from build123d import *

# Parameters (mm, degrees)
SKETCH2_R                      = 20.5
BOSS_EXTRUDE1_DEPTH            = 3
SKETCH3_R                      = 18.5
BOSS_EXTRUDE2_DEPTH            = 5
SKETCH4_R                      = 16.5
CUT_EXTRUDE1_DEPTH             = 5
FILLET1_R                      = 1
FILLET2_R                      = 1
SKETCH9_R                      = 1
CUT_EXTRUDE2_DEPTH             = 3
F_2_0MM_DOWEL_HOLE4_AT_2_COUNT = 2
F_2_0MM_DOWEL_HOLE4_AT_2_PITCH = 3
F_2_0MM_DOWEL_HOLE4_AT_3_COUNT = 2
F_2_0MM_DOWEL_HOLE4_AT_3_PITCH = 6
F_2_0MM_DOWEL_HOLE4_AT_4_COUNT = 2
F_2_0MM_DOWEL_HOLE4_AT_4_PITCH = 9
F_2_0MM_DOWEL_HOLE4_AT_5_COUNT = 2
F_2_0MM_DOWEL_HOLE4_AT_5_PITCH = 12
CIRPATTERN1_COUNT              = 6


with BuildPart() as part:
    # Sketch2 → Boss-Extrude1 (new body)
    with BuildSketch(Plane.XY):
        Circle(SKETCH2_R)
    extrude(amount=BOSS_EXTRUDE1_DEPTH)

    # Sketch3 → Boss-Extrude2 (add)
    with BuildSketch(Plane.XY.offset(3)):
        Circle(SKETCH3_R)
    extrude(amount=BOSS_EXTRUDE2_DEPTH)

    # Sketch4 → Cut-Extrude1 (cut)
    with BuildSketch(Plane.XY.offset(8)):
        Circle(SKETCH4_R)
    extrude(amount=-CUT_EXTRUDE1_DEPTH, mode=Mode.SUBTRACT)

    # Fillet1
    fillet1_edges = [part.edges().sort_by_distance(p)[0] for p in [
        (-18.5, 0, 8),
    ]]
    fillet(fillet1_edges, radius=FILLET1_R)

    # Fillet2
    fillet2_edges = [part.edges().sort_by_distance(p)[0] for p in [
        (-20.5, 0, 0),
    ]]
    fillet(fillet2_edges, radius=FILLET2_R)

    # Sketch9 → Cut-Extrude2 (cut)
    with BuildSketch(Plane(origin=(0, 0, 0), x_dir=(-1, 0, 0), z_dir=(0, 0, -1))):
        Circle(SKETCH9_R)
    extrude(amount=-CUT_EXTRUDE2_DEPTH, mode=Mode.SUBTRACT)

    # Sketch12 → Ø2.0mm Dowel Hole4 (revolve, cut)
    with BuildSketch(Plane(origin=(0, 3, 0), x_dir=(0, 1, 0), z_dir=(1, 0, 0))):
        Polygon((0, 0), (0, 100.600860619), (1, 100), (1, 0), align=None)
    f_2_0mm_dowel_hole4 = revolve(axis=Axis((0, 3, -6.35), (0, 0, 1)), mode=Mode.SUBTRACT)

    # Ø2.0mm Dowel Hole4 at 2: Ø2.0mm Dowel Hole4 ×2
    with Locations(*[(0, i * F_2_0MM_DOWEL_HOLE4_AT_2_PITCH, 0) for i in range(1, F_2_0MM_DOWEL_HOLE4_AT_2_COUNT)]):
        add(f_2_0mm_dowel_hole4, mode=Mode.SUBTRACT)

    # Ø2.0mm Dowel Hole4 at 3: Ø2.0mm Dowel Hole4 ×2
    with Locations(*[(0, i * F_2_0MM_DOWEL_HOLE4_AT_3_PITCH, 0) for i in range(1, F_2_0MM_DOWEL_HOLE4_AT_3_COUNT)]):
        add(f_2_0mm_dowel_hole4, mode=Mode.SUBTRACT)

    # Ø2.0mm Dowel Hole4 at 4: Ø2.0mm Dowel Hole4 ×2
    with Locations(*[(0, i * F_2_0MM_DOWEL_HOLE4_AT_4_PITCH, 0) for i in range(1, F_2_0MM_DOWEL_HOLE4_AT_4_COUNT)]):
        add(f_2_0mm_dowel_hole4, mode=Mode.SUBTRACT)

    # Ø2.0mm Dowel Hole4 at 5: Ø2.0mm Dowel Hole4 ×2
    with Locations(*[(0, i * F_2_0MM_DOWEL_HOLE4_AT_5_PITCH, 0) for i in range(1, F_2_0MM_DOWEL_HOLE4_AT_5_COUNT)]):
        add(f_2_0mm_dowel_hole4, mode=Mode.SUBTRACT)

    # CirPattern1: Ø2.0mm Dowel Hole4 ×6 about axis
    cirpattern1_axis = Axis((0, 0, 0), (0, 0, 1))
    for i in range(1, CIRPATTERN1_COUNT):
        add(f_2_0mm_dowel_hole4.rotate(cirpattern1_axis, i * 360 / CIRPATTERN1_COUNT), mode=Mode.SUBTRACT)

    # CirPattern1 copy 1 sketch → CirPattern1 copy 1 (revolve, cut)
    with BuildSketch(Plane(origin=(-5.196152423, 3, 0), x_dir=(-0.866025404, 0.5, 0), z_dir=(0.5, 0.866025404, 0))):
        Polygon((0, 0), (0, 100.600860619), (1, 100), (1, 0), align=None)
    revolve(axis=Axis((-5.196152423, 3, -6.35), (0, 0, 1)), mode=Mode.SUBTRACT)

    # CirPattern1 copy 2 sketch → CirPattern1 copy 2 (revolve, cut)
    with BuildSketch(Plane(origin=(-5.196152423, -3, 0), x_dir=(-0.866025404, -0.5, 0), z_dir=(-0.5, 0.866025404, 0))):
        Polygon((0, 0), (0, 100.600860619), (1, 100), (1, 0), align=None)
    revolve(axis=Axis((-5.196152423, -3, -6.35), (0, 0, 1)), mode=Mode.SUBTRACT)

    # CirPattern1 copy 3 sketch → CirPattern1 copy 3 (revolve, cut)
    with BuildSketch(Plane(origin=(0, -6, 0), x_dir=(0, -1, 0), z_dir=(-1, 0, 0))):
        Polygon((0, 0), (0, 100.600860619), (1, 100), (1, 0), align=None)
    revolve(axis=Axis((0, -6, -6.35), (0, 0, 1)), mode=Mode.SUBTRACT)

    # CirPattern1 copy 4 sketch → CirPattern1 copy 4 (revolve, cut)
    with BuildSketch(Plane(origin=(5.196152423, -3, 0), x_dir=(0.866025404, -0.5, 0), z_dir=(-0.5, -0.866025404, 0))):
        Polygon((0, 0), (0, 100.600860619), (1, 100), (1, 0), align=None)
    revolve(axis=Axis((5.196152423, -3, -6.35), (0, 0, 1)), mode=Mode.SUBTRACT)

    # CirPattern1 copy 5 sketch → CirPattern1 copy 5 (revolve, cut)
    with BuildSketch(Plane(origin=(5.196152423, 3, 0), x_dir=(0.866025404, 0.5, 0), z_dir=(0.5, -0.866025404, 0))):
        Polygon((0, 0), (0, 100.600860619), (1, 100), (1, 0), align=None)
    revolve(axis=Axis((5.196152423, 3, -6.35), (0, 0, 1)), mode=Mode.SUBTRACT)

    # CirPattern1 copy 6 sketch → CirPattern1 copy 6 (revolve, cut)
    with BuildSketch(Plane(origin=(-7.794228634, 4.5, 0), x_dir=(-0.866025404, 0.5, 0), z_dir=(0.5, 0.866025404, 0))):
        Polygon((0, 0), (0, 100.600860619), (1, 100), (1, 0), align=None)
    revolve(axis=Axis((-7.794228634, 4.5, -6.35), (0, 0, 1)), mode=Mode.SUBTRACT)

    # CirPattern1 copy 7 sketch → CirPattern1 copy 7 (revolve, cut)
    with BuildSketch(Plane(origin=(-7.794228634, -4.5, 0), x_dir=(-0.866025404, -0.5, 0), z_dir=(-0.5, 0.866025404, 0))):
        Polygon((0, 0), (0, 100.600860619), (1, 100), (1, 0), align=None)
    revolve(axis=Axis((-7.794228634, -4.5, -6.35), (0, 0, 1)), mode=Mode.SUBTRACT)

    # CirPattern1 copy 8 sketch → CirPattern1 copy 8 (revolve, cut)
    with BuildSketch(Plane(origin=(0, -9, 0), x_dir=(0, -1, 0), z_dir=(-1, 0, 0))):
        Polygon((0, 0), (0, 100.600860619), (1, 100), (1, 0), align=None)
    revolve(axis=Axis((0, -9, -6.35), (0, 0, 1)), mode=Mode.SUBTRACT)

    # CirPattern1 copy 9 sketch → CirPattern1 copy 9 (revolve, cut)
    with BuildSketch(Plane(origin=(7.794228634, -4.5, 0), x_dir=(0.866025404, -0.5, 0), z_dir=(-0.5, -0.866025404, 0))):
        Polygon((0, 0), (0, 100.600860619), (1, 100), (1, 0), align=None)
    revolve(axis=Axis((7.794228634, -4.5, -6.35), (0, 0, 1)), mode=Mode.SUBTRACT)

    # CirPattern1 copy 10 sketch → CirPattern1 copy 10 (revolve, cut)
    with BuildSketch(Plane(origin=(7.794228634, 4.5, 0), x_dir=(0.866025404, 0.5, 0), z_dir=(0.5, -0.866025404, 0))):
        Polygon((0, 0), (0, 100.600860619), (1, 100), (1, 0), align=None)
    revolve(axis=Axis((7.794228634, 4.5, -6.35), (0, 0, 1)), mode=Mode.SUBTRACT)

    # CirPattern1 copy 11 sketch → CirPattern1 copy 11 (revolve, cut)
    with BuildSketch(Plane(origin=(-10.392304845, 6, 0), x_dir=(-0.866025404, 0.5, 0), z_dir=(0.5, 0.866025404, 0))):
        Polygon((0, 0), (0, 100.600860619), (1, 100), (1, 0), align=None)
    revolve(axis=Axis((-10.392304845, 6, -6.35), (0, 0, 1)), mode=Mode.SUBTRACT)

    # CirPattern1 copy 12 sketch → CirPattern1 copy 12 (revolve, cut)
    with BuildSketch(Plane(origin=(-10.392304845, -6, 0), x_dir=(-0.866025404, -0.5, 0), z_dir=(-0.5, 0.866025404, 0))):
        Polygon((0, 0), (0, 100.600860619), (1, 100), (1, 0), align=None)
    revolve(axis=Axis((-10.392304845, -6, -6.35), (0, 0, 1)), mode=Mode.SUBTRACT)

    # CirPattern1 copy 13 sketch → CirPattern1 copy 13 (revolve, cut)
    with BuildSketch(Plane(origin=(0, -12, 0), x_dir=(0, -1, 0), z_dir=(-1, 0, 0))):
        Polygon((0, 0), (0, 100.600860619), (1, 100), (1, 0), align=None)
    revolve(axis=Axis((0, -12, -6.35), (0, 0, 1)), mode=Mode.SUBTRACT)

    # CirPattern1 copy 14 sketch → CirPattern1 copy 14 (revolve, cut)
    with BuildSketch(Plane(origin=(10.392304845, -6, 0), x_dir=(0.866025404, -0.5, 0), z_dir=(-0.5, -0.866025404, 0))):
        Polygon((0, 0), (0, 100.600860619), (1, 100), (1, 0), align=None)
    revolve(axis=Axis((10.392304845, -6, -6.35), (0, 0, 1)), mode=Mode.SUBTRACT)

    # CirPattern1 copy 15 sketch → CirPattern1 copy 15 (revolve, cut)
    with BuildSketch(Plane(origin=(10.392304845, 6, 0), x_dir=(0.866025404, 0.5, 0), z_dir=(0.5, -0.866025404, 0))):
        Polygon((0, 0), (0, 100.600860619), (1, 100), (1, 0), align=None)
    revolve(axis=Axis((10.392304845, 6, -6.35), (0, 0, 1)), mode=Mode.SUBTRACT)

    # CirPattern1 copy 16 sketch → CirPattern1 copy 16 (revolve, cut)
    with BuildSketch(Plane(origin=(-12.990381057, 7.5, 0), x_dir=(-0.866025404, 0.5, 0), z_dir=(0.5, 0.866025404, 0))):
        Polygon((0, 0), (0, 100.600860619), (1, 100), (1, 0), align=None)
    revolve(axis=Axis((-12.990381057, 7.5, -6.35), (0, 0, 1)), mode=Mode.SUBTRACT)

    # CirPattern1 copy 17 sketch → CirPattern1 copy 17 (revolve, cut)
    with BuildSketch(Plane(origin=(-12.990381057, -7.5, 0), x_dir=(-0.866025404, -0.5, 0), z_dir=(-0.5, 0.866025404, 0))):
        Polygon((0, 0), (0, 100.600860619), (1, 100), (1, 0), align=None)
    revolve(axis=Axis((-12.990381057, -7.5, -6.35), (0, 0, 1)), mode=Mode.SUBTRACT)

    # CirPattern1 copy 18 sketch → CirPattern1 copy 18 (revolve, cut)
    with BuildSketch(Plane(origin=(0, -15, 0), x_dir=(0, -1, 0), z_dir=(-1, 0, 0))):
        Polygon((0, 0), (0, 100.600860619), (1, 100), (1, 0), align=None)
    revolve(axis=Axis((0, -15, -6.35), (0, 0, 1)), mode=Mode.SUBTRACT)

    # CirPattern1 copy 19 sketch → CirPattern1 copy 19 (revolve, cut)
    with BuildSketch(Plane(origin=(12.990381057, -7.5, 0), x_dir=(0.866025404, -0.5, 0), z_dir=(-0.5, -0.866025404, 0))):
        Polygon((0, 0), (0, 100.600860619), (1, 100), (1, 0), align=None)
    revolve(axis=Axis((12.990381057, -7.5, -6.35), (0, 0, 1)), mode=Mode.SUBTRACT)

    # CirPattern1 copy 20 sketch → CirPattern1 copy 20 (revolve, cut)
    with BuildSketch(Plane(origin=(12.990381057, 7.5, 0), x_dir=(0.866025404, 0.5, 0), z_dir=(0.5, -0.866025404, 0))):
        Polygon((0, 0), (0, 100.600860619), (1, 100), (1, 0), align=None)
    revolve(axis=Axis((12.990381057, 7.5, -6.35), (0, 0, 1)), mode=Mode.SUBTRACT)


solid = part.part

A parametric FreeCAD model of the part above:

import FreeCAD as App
import Part
import Sketcher
Q = App.Units.Quantity


def edges_at(feature, points):
    """Names of the edges that pass closest to the given points."""
    edges = feature.Shape.Edges
    near = lambda p: min(range(len(edges)), key=lambda i: edges[i].distToShape(Part.Vertex(*p))[0])
    return sorted({f"Edge{near(p) + 1}" for p in points})

doc = App.newDocument("Part")
params = doc.addObject("Spreadsheet::Sheet", "Params")
for row, (alias, value) in enumerate([
    ("sketch1_diameter", "41 mm"),
    ("pad1_length", "3 mm"),
    ("sketch2_diameter", "37 mm"),
    ("pad2_length", "5 mm"),
    ("sketch3_diameter", "33 mm"),
    ("pocket1_length", "5 mm"),
    ("fillet_radius", "1 mm"),
    ("fillet2_radius", "1 mm"),
    ("sketch4_diameter", "2 mm"),
    ("pocket2_length", "3 mm"),
    ("sketch5_width", "1 mm"),
    ("sketch5_height", "100 mm"),
    ("groove_angle", "360 deg"),
    ("linearpattern_pitch", "3 mm"),
    ("linearpattern2_pitch", "6 mm"),
    ("linearpattern3_pitch", "9 mm"),
    ("linearpattern4_pitch", "12 mm"),
    ("sketch6_width", "1 mm"),
    ("sketch6_height", "100 mm"),
    ("groove2_angle", "360 deg"),
    ("sketch7_width", "1 mm"),
    ("sketch7_height", "100 mm"),
    ("groove3_angle", "360 deg"),
    ("sketch8_width", "1 mm"),
    ("sketch8_height", "100 mm"),
    ("groove4_angle", "360 deg"),
    ("sketch9_width", "1 mm"),
    ("sketch9_height", "100 mm"),
    ("groove5_angle", "360 deg"),
    ("sketch10_width", "1 mm"),
    ("sketch10_height", "100 mm"),
    ("groove6_angle", "360 deg"),
    ("sketch11_width", "1 mm"),
    ("sketch11_height", "100 mm"),
    ("groove7_angle", "360 deg"),
    ("sketch12_width", "1 mm"),
    ("sketch12_height", "100 mm"),
    ("groove8_angle", "360 deg"),
    ("sketch13_width", "1 mm"),
    ("sketch13_height", "100 mm"),
    ("groove9_angle", "360 deg"),
    ("sketch14_width", "1 mm"),
    ("sketch14_height", "100 mm"),
    ("groove10_angle", "360 deg"),
    ("sketch15_width", "1 mm"),
    ("sketch15_height", "100 mm"),
    ("groove11_angle", "360 deg"),
    ("sketch16_width", "1 mm"),
    ("sketch16_height", "100 mm"),
    ("groove12_angle", "360 deg"),
    ("sketch17_width", "1 mm"),
    ("sketch17_height", "100 mm"),
    ("groove13_angle", "360 deg"),
    ("sketch18_width", "1 mm"),
    ("sketch18_height", "100 mm"),
    ("groove14_angle", "360 deg"),
    ("sketch19_width", "1 mm"),
    ("sketch19_height", "100 mm"),
    ("groove15_angle", "360 deg"),
    ("sketch20_width", "1 mm"),
    ("sketch20_height", "100 mm"),
    ("groove16_angle", "360 deg"),
    ("sketch21_width", "1 mm"),
    ("sketch21_height", "100 mm"),
    ("groove17_angle", "360 deg"),
    ("sketch22_width", "1 mm"),
    ("sketch22_height", "100 mm"),
    ("groove18_angle", "360 deg"),
    ("sketch23_width", "1 mm"),
    ("sketch23_height", "100 mm"),
    ("groove19_angle", "360 deg"),
    ("sketch24_width", "1 mm"),
    ("sketch24_height", "100 mm"),
    ("groove20_angle", "360 deg"),
    ("sketch25_width", "1 mm"),
    ("sketch25_height", "100 mm"),
    ("groove21_angle", "360 deg"),
], start=1):
    params.set(f"A{row}", alias)
    params.set(f"B{row}", "=" + value)
    params.setAlias(f"B{row}", alias)

body = doc.addObject("PartDesign::Body", "Body")

# Sketch on XY plane
sketch1 = body.newObject("Sketcher::SketchObject", "Sketch")
sketch1.AttachmentSupport = (doc.getObject("XY_Plane"), [""])
sketch1.MapMode = "FlatFace"
sketch1.addGeometry(Part.Circle(App.Vector(0, 0, 0), App.Vector(0, 0, 1), 20.5), False)
sketch1.addConstraint(Sketcher.Constraint("Coincident", 0, 3, -1, 1))
sketch1.addConstraint(Sketcher.Constraint("Diameter", 0, Q("41 mm")))
sketch1.setExpression("Constraints[1]", "Params.sketch1_diameter")
pad1 = body.newObject("PartDesign::Pad", "Pad")
pad1.Profile = sketch1
pad1.setExpression("Length", "Params.pad1_length")

# Sketch on XY plane
sketch2 = body.newObject("Sketcher::SketchObject", "Sketch001")
sketch2.AttachmentSupport = (doc.getObject("XY_Plane"), [""])
sketch2.MapMode = "FlatFace"
sketch2.AttachmentOffset = App.Placement(App.Vector(0, 0, 3), App.Rotation())
sketch2.addGeometry(Part.Circle(App.Vector(0, 0, 0), App.Vector(0, 0, 1), 18.5), False)
sketch2.addConstraint(Sketcher.Constraint("Coincident", 0, 3, -1, 1))
sketch2.addConstraint(Sketcher.Constraint("Diameter", 0, Q("37 mm")))
sketch2.setExpression("Constraints[1]", "Params.sketch2_diameter")
pad2 = body.newObject("PartDesign::Pad", "Pad001")
pad2.Profile = sketch2
pad2.setExpression("Length", "Params.pad2_length")

# Sketch on XY plane
sketch3 = body.newObject("Sketcher::SketchObject", "Sketch002")
sketch3.AttachmentSupport = (doc.getObject("XY_Plane"), [""])
sketch3.MapMode = "FlatFace"
sketch3.AttachmentOffset = App.Placement(App.Vector(0, 0, 8), App.Rotation())
sketch3.addGeometry(Part.Circle(App.Vector(0, 0, 0), App.Vector(0, 0, 1), 16.5), False)
sketch3.addConstraint(Sketcher.Constraint("Coincident", 0, 3, -1, 1))
sketch3.addConstraint(Sketcher.Constraint("Diameter", 0, Q("33 mm")))
sketch3.setExpression("Constraints[1]", "Params.sketch3_diameter")
pocket1 = body.newObject("PartDesign::Pocket", "Pocket")
pocket1.Profile = sketch3
pocket1.setExpression("Length", "Params.pocket1_length")
doc.recompute()

fillet = body.newObject("PartDesign::Fillet", "Fillet")
fillet.Base = (pocket1, edges_at(pocket1, [(-18.5, 0, 8)]))
fillet.setExpression("Radius", "Params.fillet_radius")
doc.recompute()

fillet2 = body.newObject("PartDesign::Fillet", "Fillet001")
fillet2.Base = (fillet, edges_at(fillet, [(-20.5, 0, 0)]))
fillet2.setExpression("Radius", "Params.fillet2_radius")

# Sketch on XY plane
sketch4 = body.newObject("Sketcher::SketchObject", "Sketch003")
sketch4.AttachmentSupport = (doc.getObject("XY_Plane"), [""])
sketch4.MapMode = "FlatFace"
sketch4.addGeometry(Part.Circle(App.Vector(0, 0, 0), App.Vector(0, 0, 1), 1), False)
sketch4.addConstraint(Sketcher.Constraint("Coincident", 0, 3, -1, 1))
sketch4.addConstraint(Sketcher.Constraint("Diameter", 0, Q("2 mm")))
sketch4.setExpression("Constraints[1]", "Params.sketch4_diameter")
pocket2 = body.newObject("PartDesign::Pocket", "Pocket001")
pocket2.Profile = sketch4
pocket2.setExpression("Length", "Params.pocket2_length")
pocket2.Reversed = True

# Sketch on YZ plane
sketch5 = body.newObject("Sketcher::SketchObject", "Sketch004")
sketch5.AttachmentSupport = (doc.getObject("YZ_Plane"), [""])
sketch5.MapMode = "FlatFace"
sketch5.addGeometry(Part.LineSegment(App.Vector(3, 100.600861, 0), App.Vector(3, 0, 0)), False)
sketch5.addGeometry(Part.LineSegment(App.Vector(3, 0, 0), App.Vector(4, 0, 0)), False)
sketch5.addGeometry(Part.LineSegment(App.Vector(4, 0, 0), App.Vector(4, 100, 0)), False)
sketch5.addGeometry(Part.LineSegment(App.Vector(4, 100, 0), App.Vector(3, 100.600861, 0)), False)
sketch5.addGeometry(Part.LineSegment(App.Vector(3, 0, 0), App.Vector(3, 100.600861, 0)), True)  # axis
sketch5.addConstraint(Sketcher.Constraint("Coincident", 0, 2, 1, 1))
sketch5.addConstraint(Sketcher.Constraint("Coincident", 1, 2, 2, 1))
sketch5.addConstraint(Sketcher.Constraint("Coincident", 2, 2, 3, 1))
sketch5.addConstraint(Sketcher.Constraint("Coincident", 3, 2, 0, 1))
sketch5.addConstraint(Sketcher.Constraint("Vertical", 0))
sketch5.addConstraint(Sketcher.Constraint("Horizontal", 1))
sketch5.addConstraint(Sketcher.Constraint("Vertical", 2))
sketch5.addConstraint(Sketcher.Constraint("Vertical", 4))
sketch5.addConstraint(Sketcher.Constraint("Coincident", 4, 1, 0, 2))
sketch5.addConstraint(Sketcher.Constraint("PointOnObject", 0, 2, -1))
sketch5.addConstraint(Sketcher.Constraint("Equal", 0, 4))
sketch5.addConstraint(Sketcher.Constraint("DistanceX", 1, 1, 1, 2, Q("1 mm")))
sketch5.addConstraint(Sketcher.Constraint("DistanceY", 2, 1, 2, 2, Q("100 mm")))
sketch5.addConstraint(Sketcher.Constraint("Angle", 3, Q("149 deg")))
sketch5.addConstraint(Sketcher.Constraint("DistanceX", -1, 1, 0, 2, Q("3 mm")))
sketch5.setExpression("Constraints[11]", "Params.sketch5_width")
sketch5.setExpression("Constraints[12]", "Params.sketch5_height")
groove = body.newObject("PartDesign::Groove", "Groove")
groove.Profile = sketch5
groove.ReferenceAxis = (sketch5, ["Axis0"])
groove.setExpression("Angle", "Params.groove_angle")
doc.recompute()

linearpattern = body.newObject("PartDesign::LinearPattern", "LinearPattern")
linearpattern.Originals = [groove]
linearpattern.Direction = (doc.getObject("Y_Axis"), [""])
linearpattern.Mode = "offset"
linearpattern.setExpression("Offset", "Params.linearpattern_pitch")
linearpattern.Occurrences = 2
body.Tip = linearpattern
doc.recompute()

linearpattern2 = body.newObject("PartDesign::LinearPattern", "LinearPattern001")
linearpattern2.Originals = [groove]
linearpattern2.Direction = (doc.getObject("Y_Axis"), [""])
linearpattern2.Mode = "offset"
linearpattern2.setExpression("Offset", "Params.linearpattern2_pitch")
linearpattern2.Occurrences = 2
body.Tip = linearpattern2
doc.recompute()

linearpattern3 = body.newObject("PartDesign::LinearPattern", "LinearPattern002")
linearpattern3.Originals = [groove]
linearpattern3.Direction = (doc.getObject("Y_Axis"), [""])
linearpattern3.Mode = "offset"
linearpattern3.setExpression("Offset", "Params.linearpattern3_pitch")
linearpattern3.Occurrences = 2
body.Tip = linearpattern3
doc.recompute()

linearpattern4 = body.newObject("PartDesign::LinearPattern", "LinearPattern003")
linearpattern4.Originals = [groove]
linearpattern4.Direction = (doc.getObject("Y_Axis"), [""])
linearpattern4.Mode = "offset"
linearpattern4.setExpression("Offset", "Params.linearpattern4_pitch")
linearpattern4.Occurrences = 2
body.Tip = linearpattern4
doc.recompute()

polarpattern = body.newObject("PartDesign::PolarPattern", "PolarPattern")
polarpattern.Originals = [groove]
polarpattern.Axis = (doc.getObject("Z_Axis"), [""])
polarpattern.Angle = 360
polarpattern.Occurrences = 6
body.Tip = polarpattern

# Sketch on an angled plane
sketch6 = body.newObject("Sketcher::SketchObject", "Sketch005")
sketch6.Placement = App.Placement(App.Vector(-5.196152, 3, 0), App.Rotation(App.Vector(-0.866025404, 0.5, 0), App.Vector(0, 0, 1), App.Vector(0.5, 0.866025404, 0), "ZXY"))
sketch6.addGeometry(Part.LineSegment(App.Vector(0, 100.600861, 0), App.Vector(0, 0, 0)), False)
sketch6.addGeometry(Part.LineSegment(App.Vector(0, 0, 0), App.Vector(1, 0, 0)), False)
sketch6.addGeometry(Part.LineSegment(App.Vector(1, 0, 0), App.Vector(1, 100, 0)), False)
sketch6.addGeometry(Part.LineSegment(App.Vector(1, 100, 0), App.Vector(0, 100.600861, 0)), False)
sketch6.addConstraint(Sketcher.Constraint("Coincident", 0, 2, 1, 1))
sketch6.addConstraint(Sketcher.Constraint("Coincident", 1, 2, 2, 1))
sketch6.addConstraint(Sketcher.Constraint("Coincident", 2, 2, 3, 1))
sketch6.addConstraint(Sketcher.Constraint("Coincident", 3, 2, 0, 1))
sketch6.addConstraint(Sketcher.Constraint("Vertical", 0))
sketch6.addConstraint(Sketcher.Constraint("Horizontal", 1))
sketch6.addConstraint(Sketcher.Constraint("Vertical", 2))
sketch6.addConstraint(Sketcher.Constraint("Coincident", 0, 2, -1, 1))
sketch6.addConstraint(Sketcher.Constraint("DistanceX", 1, 1, 1, 2, Q("1 mm")))
sketch6.addConstraint(Sketcher.Constraint("DistanceY", 2, 1, 2, 2, Q("100 mm")))
sketch6.addConstraint(Sketcher.Constraint("Angle", 3, Q("149 deg")))
sketch6.setExpression("Constraints[8]", "Params.sketch6_width")
sketch6.setExpression("Constraints[9]", "Params.sketch6_height")
groove2 = body.newObject("PartDesign::Groove", "Groove001")
groove2.Profile = sketch6
groove2.ReferenceAxis = (sketch6, ["V_Axis"])
groove2.setExpression("Angle", "Params.groove2_angle")

# Sketch on an angled plane
sketch7 = body.newObject("Sketcher::SketchObject", "Sketch006")
sketch7.Placement = App.Placement(App.Vector(-5.196152, -3, 0), App.Rotation(App.Vector(-0.866025404, -0.5, 0), App.Vector(0, 0, 1), App.Vector(-0.5, 0.866025404, 0), "ZXY"))
sketch7.addGeometry(Part.LineSegment(App.Vector(0, 100.600861, 0), App.Vector(0, 0, 0)), False)
sketch7.addGeometry(Part.LineSegment(App.Vector(0, 0, 0), App.Vector(1, 0, 0)), False)
sketch7.addGeometry(Part.LineSegment(App.Vector(1, 0, 0), App.Vector(1, 100, 0)), False)
sketch7.addGeometry(Part.LineSegment(App.Vector(1, 100, 0), App.Vector(0, 100.600861, 0)), False)
sketch7.addConstraint(Sketcher.Constraint("Coincident", 0, 2, 1, 1))
sketch7.addConstraint(Sketcher.Constraint("Coincident", 1, 2, 2, 1))
sketch7.addConstraint(Sketcher.Constraint("Coincident", 2, 2, 3, 1))
sketch7.addConstraint(Sketcher.Constraint("Coincident", 3, 2, 0, 1))
sketch7.addConstraint(Sketcher.Constraint("Vertical", 0))
sketch7.addConstraint(Sketcher.Constraint("Horizontal", 1))
sketch7.addConstraint(Sketcher.Constraint("Vertical", 2))
sketch7.addConstraint(Sketcher.Constraint("Coincident", 0, 2, -1, 1))
sketch7.addConstraint(Sketcher.Constraint("DistanceX", 1, 1, 1, 2, Q("1 mm")))
sketch7.addConstraint(Sketcher.Constraint("DistanceY", 2, 1, 2, 2, Q("100 mm")))
sketch7.addConstraint(Sketcher.Constraint("Angle", 3, Q("149 deg")))
sketch7.setExpression("Constraints[8]", "Params.sketch7_width")
sketch7.setExpression("Constraints[9]", "Params.sketch7_height")
groove3 = body.newObject("PartDesign::Groove", "Groove002")
groove3.Profile = sketch7
groove3.ReferenceAxis = (sketch7, ["V_Axis"])
groove3.setExpression("Angle", "Params.groove3_angle")

# Sketch on YZ plane
sketch8 = body.newObject("Sketcher::SketchObject", "Sketch007")
sketch8.AttachmentSupport = (doc.getObject("YZ_Plane"), [""])
sketch8.MapMode = "FlatFace"
sketch8.addGeometry(Part.LineSegment(App.Vector(-6, 100.600861, 0), App.Vector(-6, 0, 0)), False)
sketch8.addGeometry(Part.LineSegment(App.Vector(-6, 0, 0), App.Vector(-7, 0, 0)), False)
sketch8.addGeometry(Part.LineSegment(App.Vector(-7, 0, 0), App.Vector(-7, 100, 0)), False)
sketch8.addGeometry(Part.LineSegment(App.Vector(-7, 100, 0), App.Vector(-6, 100.600861, 0)), False)
sketch8.addGeometry(Part.LineSegment(App.Vector(-6, 0, 0), App.Vector(-6, 100.600861, 0)), True)  # axis
sketch8.addConstraint(Sketcher.Constraint("Coincident", 0, 2, 1, 1))
sketch8.addConstraint(Sketcher.Constraint("Coincident", 1, 2, 2, 1))
sketch8.addConstraint(Sketcher.Constraint("Coincident", 2, 2, 3, 1))
sketch8.addConstraint(Sketcher.Constraint("Coincident", 3, 2, 0, 1))
sketch8.addConstraint(Sketcher.Constraint("Vertical", 0))
sketch8.addConstraint(Sketcher.Constraint("Horizontal", 1))
sketch8.addConstraint(Sketcher.Constraint("Vertical", 2))
sketch8.addConstraint(Sketcher.Constraint("Vertical", 4))
sketch8.addConstraint(Sketcher.Constraint("Coincident", 4, 1, 0, 2))
sketch8.addConstraint(Sketcher.Constraint("PointOnObject", 0, 2, -1))
sketch8.addConstraint(Sketcher.Constraint("Equal", 0, 4))
sketch8.addConstraint(Sketcher.Constraint("DistanceX", 1, 2, 1, 1, Q("1 mm")))
sketch8.addConstraint(Sketcher.Constraint("DistanceY", 2, 1, 2, 2, Q("100 mm")))
sketch8.addConstraint(Sketcher.Constraint("Angle", 3, Q("31 deg")))
sketch8.addConstraint(Sketcher.Constraint("DistanceX", 0, 2, -1, 1, Q("6 mm")))
sketch8.setExpression("Constraints[11]", "Params.sketch8_width")
sketch8.setExpression("Constraints[12]", "Params.sketch8_height")
groove4 = body.newObject("PartDesign::Groove", "Groove003")
groove4.Profile = sketch8
groove4.ReferenceAxis = (sketch8, ["Axis0"])
groove4.setExpression("Angle", "Params.groove4_angle")

# Sketch on an angled plane
sketch9 = body.newObject("Sketcher::SketchObject", "Sketch008")
sketch9.Placement = App.Placement(App.Vector(5.196152, -3, 0), App.Rotation(App.Vector(0.866025404, -0.5, 0), App.Vector(0, 0, 1), App.Vector(-0.5, -0.866025404, 0), "ZXY"))
sketch9.addGeometry(Part.LineSegment(App.Vector(0, 100.600861, 0), App.Vector(0, 0, 0)), False)
sketch9.addGeometry(Part.LineSegment(App.Vector(0, 0, 0), App.Vector(1, 0, 0)), False)
sketch9.addGeometry(Part.LineSegment(App.Vector(1, 0, 0), App.Vector(1, 100, 0)), False)
sketch9.addGeometry(Part.LineSegment(App.Vector(1, 100, 0), App.Vector(0, 100.600861, 0)), False)
sketch9.addConstraint(Sketcher.Constraint("Coincident", 0, 2, 1, 1))
sketch9.addConstraint(Sketcher.Constraint("Coincident", 1, 2, 2, 1))
sketch9.addConstraint(Sketcher.Constraint("Coincident", 2, 2, 3, 1))
sketch9.addConstraint(Sketcher.Constraint("Coincident", 3, 2, 0, 1))
sketch9.addConstraint(Sketcher.Constraint("Vertical", 0))
sketch9.addConstraint(Sketcher.Constraint("Horizontal", 1))
sketch9.addConstraint(Sketcher.Constraint("Vertical", 2))
sketch9.addConstraint(Sketcher.Constraint("Coincident", 0, 2, -1, 1))
sketch9.addConstraint(Sketcher.Constraint("DistanceX", 1, 1, 1, 2, Q("1 mm")))
sketch9.addConstraint(Sketcher.Constraint("DistanceY", 2, 1, 2, 2, Q("100 mm")))
sketch9.addConstraint(Sketcher.Constraint("Angle", 3, Q("149 deg")))
sketch9.setExpression("Constraints[8]", "Params.sketch9_width")
sketch9.setExpression("Constraints[9]", "Params.sketch9_height")
groove5 = body.newObject("PartDesign::Groove", "Groove004")
groove5.Profile = sketch9
groove5.ReferenceAxis = (sketch9, ["V_Axis"])
groove5.setExpression("Angle", "Params.groove5_angle")

# Sketch on an angled plane
sketch10 = body.newObject("Sketcher::SketchObject", "Sketch009")
sketch10.Placement = App.Placement(App.Vector(5.196152, 3, 0), App.Rotation(App.Vector(0.866025404, 0.5, 0), App.Vector(0, 0, 1), App.Vector(0.5, -0.866025404, 0), "ZXY"))
sketch10.addGeometry(Part.LineSegment(App.Vector(0, 100.600861, 0), App.Vector(0, 0, 0)), False)
sketch10.addGeometry(Part.LineSegment(App.Vector(0, 0, 0), App.Vector(1, 0, 0)), False)
sketch10.addGeometry(Part.LineSegment(App.Vector(1, 0, 0), App.Vector(1, 100, 0)), False)
sketch10.addGeometry(Part.LineSegment(App.Vector(1, 100, 0), App.Vector(0, 100.600861, 0)), False)
sketch10.addConstraint(Sketcher.Constraint("Coincident", 0, 2, 1, 1))
sketch10.addConstraint(Sketcher.Constraint("Coincident", 1, 2, 2, 1))
sketch10.addConstraint(Sketcher.Constraint("Coincident", 2, 2, 3, 1))
sketch10.addConstraint(Sketcher.Constraint("Coincident", 3, 2, 0, 1))
sketch10.addConstraint(Sketcher.Constraint("Vertical", 0))
sketch10.addConstraint(Sketcher.Constraint("Horizontal", 1))
sketch10.addConstraint(Sketcher.Constraint("Vertical", 2))
sketch10.addConstraint(Sketcher.Constraint("Coincident", 0, 2, -1, 1))
sketch10.addConstraint(Sketcher.Constraint("DistanceX", 1, 1, 1, 2, Q("1 mm")))
sketch10.addConstraint(Sketcher.Constraint("DistanceY", 2, 1, 2, 2, Q("100 mm")))
sketch10.addConstraint(Sketcher.Constraint("Angle", 3, Q("149 deg")))
sketch10.setExpression("Constraints[8]", "Params.sketch10_width")
sketch10.setExpression("Constraints[9]", "Params.sketch10_height")
groove6 = body.newObject("PartDesign::Groove", "Groove005")
groove6.Profile = sketch10
groove6.ReferenceAxis = (sketch10, ["V_Axis"])
groove6.setExpression("Angle", "Params.groove6_angle")

# Sketch on an angled plane
sketch11 = body.newObject("Sketcher::SketchObject", "Sketch010")
sketch11.Placement = App.Placement(App.Vector(-7.794229, 4.5, 0), App.Rotation(App.Vector(-0.866025404, 0.5, 0), App.Vector(0, 0, 1), App.Vector(0.5, 0.866025404, 0), "ZXY"))
sketch11.addGeometry(Part.LineSegment(App.Vector(0, 100.600861, 0), App.Vector(0, 0, 0)), False)
sketch11.addGeometry(Part.LineSegment(App.Vector(0, 0, 0), App.Vector(1, 0, 0)), False)
sketch11.addGeometry(Part.LineSegment(App.Vector(1, 0, 0), App.Vector(1, 100, 0)), False)
sketch11.addGeometry(Part.LineSegment(App.Vector(1, 100, 0), App.Vector(0, 100.600861, 0)), False)
sketch11.addConstraint(Sketcher.Constraint("Coincident", 0, 2, 1, 1))
sketch11.addConstraint(Sketcher.Constraint("Coincident", 1, 2, 2, 1))
sketch11.addConstraint(Sketcher.Constraint("Coincident", 2, 2, 3, 1))
sketch11.addConstraint(Sketcher.Constraint("Coincident", 3, 2, 0, 1))
sketch11.addConstraint(Sketcher.Constraint("Vertical", 0))
sketch11.addConstraint(Sketcher.Constraint("Horizontal", 1))
sketch11.addConstraint(Sketcher.Constraint("Vertical", 2))
sketch11.addConstraint(Sketcher.Constraint("Coincident", 0, 2, -1, 1))
sketch11.addConstraint(Sketcher.Constraint("DistanceX", 1, 1, 1, 2, Q("1 mm")))
sketch11.addConstraint(Sketcher.Constraint("DistanceY", 2, 1, 2, 2, Q("100 mm")))
sketch11.addConstraint(Sketcher.Constraint("Angle", 3, Q("149 deg")))
sketch11.setExpression("Constraints[8]", "Params.sketch11_width")
sketch11.setExpression("Constraints[9]", "Params.sketch11_height")
groove7 = body.newObject("PartDesign::Groove", "Groove006")
groove7.Profile = sketch11
groove7.ReferenceAxis = (sketch11, ["V_Axis"])
groove7.setExpression("Angle", "Params.groove7_angle")

# Sketch on an angled plane
sketch12 = body.newObject("Sketcher::SketchObject", "Sketch011")
sketch12.Placement = App.Placement(App.Vector(-7.794229, -4.5, 0), App.Rotation(App.Vector(-0.866025404, -0.5, 0), App.Vector(0, 0, 1), App.Vector(-0.5, 0.866025404, 0), "ZXY"))
sketch12.addGeometry(Part.LineSegment(App.Vector(0, 100.600861, 0), App.Vector(0, 0, 0)), False)
sketch12.addGeometry(Part.LineSegment(App.Vector(0, 0, 0), App.Vector(1, 0, 0)), False)
sketch12.addGeometry(Part.LineSegment(App.Vector(1, 0, 0), App.Vector(1, 100, 0)), False)
sketch12.addGeometry(Part.LineSegment(App.Vector(1, 100, 0), App.Vector(0, 100.600861, 0)), False)
sketch12.addConstraint(Sketcher.Constraint("Coincident", 0, 2, 1, 1))
sketch12.addConstraint(Sketcher.Constraint("Coincident", 1, 2, 2, 1))
sketch12.addConstraint(Sketcher.Constraint("Coincident", 2, 2, 3, 1))
sketch12.addConstraint(Sketcher.Constraint("Coincident", 3, 2, 0, 1))
sketch12.addConstraint(Sketcher.Constraint("Vertical", 0))
sketch12.addConstraint(Sketcher.Constraint("Horizontal", 1))
sketch12.addConstraint(Sketcher.Constraint("Vertical", 2))
sketch12.addConstraint(Sketcher.Constraint("Coincident", 0, 2, -1, 1))
sketch12.addConstraint(Sketcher.Constraint("DistanceX", 1, 1, 1, 2, Q("1 mm")))
sketch12.addConstraint(Sketcher.Constraint("DistanceY", 2, 1, 2, 2, Q("100 mm")))
sketch12.addConstraint(Sketcher.Constraint("Angle", 3, Q("149 deg")))
sketch12.setExpression("Constraints[8]", "Params.sketch12_width")
sketch12.setExpression("Constraints[9]", "Params.sketch12_height")
groove8 = body.newObject("PartDesign::Groove", "Groove007")
groove8.Profile = sketch12
groove8.ReferenceAxis = (sketch12, ["V_Axis"])
groove8.setExpression("Angle", "Params.groove8_angle")

# Sketch on YZ plane
sketch13 = body.newObject("Sketcher::SketchObject", "Sketch012")
sketch13.AttachmentSupport = (doc.getObject("YZ_Plane"), [""])
sketch13.MapMode = "FlatFace"
sketch13.addGeometry(Part.LineSegment(App.Vector(-9, 100.600861, 0), App.Vector(-9, 0, 0)), False)
sketch13.addGeometry(Part.LineSegment(App.Vector(-9, 0, 0), App.Vector(-10, 0, 0)), False)
sketch13.addGeometry(Part.LineSegment(App.Vector(-10, 0, 0), App.Vector(-10, 100, 0)), False)
sketch13.addGeometry(Part.LineSegment(App.Vector(-10, 100, 0), App.Vector(-9, 100.600861, 0)), False)
sketch13.addGeometry(Part.LineSegment(App.Vector(-9, 0, 0), App.Vector(-9, 100.600861, 0)), True)  # axis
sketch13.addConstraint(Sketcher.Constraint("Coincident", 0, 2, 1, 1))
sketch13.addConstraint(Sketcher.Constraint("Coincident", 1, 2, 2, 1))
sketch13.addConstraint(Sketcher.Constraint("Coincident", 2, 2, 3, 1))
sketch13.addConstraint(Sketcher.Constraint("Coincident", 3, 2, 0, 1))
sketch13.addConstraint(Sketcher.Constraint("Vertical", 0))
sketch13.addConstraint(Sketcher.Constraint("Horizontal", 1))
sketch13.addConstraint(Sketcher.Constraint("Vertical", 2))
sketch13.addConstraint(Sketcher.Constraint("Vertical", 4))
sketch13.addConstraint(Sketcher.Constraint("Coincident", 4, 1, 0, 2))
sketch13.addConstraint(Sketcher.Constraint("PointOnObject", 0, 2, -1))
sketch13.addConstraint(Sketcher.Constraint("Equal", 0, 4))
sketch13.addConstraint(Sketcher.Constraint("DistanceX", 1, 2, 1, 1, Q("1 mm")))
sketch13.addConstraint(Sketcher.Constraint("DistanceY", 2, 1, 2, 2, Q("100 mm")))
sketch13.addConstraint(Sketcher.Constraint("Angle", 3, Q("31 deg")))
sketch13.addConstraint(Sketcher.Constraint("DistanceX", 0, 2, -1, 1, Q("9 mm")))
sketch13.setExpression("Constraints[11]", "Params.sketch13_width")
sketch13.setExpression("Constraints[12]", "Params.sketch13_height")
groove9 = body.newObject("PartDesign::Groove", "Groove008")
groove9.Profile = sketch13
groove9.ReferenceAxis = (sketch13, ["Axis0"])
groove9.setExpression("Angle", "Params.groove9_angle")

# Sketch on an angled plane
sketch14 = body.newObject("Sketcher::SketchObject", "Sketch013")
sketch14.Placement = App.Placement(App.Vector(7.794229, -4.5, 0), App.Rotation(App.Vector(0.866025404, -0.5, 0), App.Vector(0, 0, 1), App.Vector(-0.5, -0.866025404, 0), "ZXY"))
sketch14.addGeometry(Part.LineSegment(App.Vector(0, 100.600861, 0), App.Vector(0, 0, 0)), False)
sketch14.addGeometry(Part.LineSegment(App.Vector(0, 0, 0), App.Vector(1, 0, 0)), False)
sketch14.addGeometry(Part.LineSegment(App.Vector(1, 0, 0), App.Vector(1, 100, 0)), False)
sketch14.addGeometry(Part.LineSegment(App.Vector(1, 100, 0), App.Vector(0, 100.600861, 0)), False)
sketch14.addConstraint(Sketcher.Constraint("Coincident", 0, 2, 1, 1))
sketch14.addConstraint(Sketcher.Constraint("Coincident", 1, 2, 2, 1))
sketch14.addConstraint(Sketcher.Constraint("Coincident", 2, 2, 3, 1))
sketch14.addConstraint(Sketcher.Constraint("Coincident", 3, 2, 0, 1))
sketch14.addConstraint(Sketcher.Constraint("Vertical", 0))
sketch14.addConstraint(Sketcher.Constraint("Horizontal", 1))
sketch14.addConstraint(Sketcher.Constraint("Vertical", 2))
sketch14.addConstraint(Sketcher.Constraint("Coincident", 0, 2, -1, 1))
sketch14.addConstraint(Sketcher.Constraint("DistanceX", 1, 1, 1, 2, Q("1 mm")))
sketch14.addConstraint(Sketcher.Constraint("DistanceY", 2, 1, 2, 2, Q("100 mm")))
sketch14.addConstraint(Sketcher.Constraint("Angle", 3, Q("149 deg")))
sketch14.setExpression("Constraints[8]", "Params.sketch14_width")
sketch14.setExpression("Constraints[9]", "Params.sketch14_height")
groove10 = body.newObject("PartDesign::Groove", "Groove009")
groove10.Profile = sketch14
groove10.ReferenceAxis = (sketch14, ["V_Axis"])
groove10.setExpression("Angle", "Params.groove10_angle")

# Sketch on an angled plane
sketch15 = body.newObject("Sketcher::SketchObject", "Sketch014")
sketch15.Placement = App.Placement(App.Vector(7.794229, 4.5, 0), App.Rotation(App.Vector(0.866025404, 0.5, 0), App.Vector(0, 0, 1), App.Vector(0.5, -0.866025404, 0), "ZXY"))
sketch15.addGeometry(Part.LineSegment(App.Vector(0, 100.600861, 0), App.Vector(0, 0, 0)), False)
sketch15.addGeometry(Part.LineSegment(App.Vector(0, 0, 0), App.Vector(1, 0, 0)), False)
sketch15.addGeometry(Part.LineSegment(App.Vector(1, 0, 0), App.Vector(1, 100, 0)), False)
sketch15.addGeometry(Part.LineSegment(App.Vector(1, 100, 0), App.Vector(0, 100.600861, 0)), False)
sketch15.addConstraint(Sketcher.Constraint("Coincident", 0, 2, 1, 1))
sketch15.addConstraint(Sketcher.Constraint("Coincident", 1, 2, 2, 1))
sketch15.addConstraint(Sketcher.Constraint("Coincident", 2, 2, 3, 1))
sketch15.addConstraint(Sketcher.Constraint("Coincident", 3, 2, 0, 1))
sketch15.addConstraint(Sketcher.Constraint("Vertical", 0))
sketch15.addConstraint(Sketcher.Constraint("Horizontal", 1))
sketch15.addConstraint(Sketcher.Constraint("Vertical", 2))
sketch15.addConstraint(Sketcher.Constraint("Coincident", 0, 2, -1, 1))
sketch15.addConstraint(Sketcher.Constraint("DistanceX", 1, 1, 1, 2, Q("1 mm")))
sketch15.addConstraint(Sketcher.Constraint("DistanceY", 2, 1, 2, 2, Q("100 mm")))
sketch15.addConstraint(Sketcher.Constraint("Angle", 3, Q("149 deg")))
sketch15.setExpression("Constraints[8]", "Params.sketch15_width")
sketch15.setExpression("Constraints[9]", "Params.sketch15_height")
groove11 = body.newObject("PartDesign::Groove", "Groove010")
groove11.Profile = sketch15
groove11.ReferenceAxis = (sketch15, ["V_Axis"])
groove11.setExpression("Angle", "Params.groove11_angle")

# Sketch on an angled plane
sketch16 = body.newObject("Sketcher::SketchObject", "Sketch015")
sketch16.Placement = App.Placement(App.Vector(-10.392305, 6, 0), App.Rotation(App.Vector(-0.866025404, 0.5, 0), App.Vector(0, 0, 1), App.Vector(0.5, 0.866025404, 0), "ZXY"))
sketch16.addGeometry(Part.LineSegment(App.Vector(0, 100.600861, 0), App.Vector(0, 0, 0)), False)
sketch16.addGeometry(Part.LineSegment(App.Vector(0, 0, 0), App.Vector(1, 0, 0)), False)
sketch16.addGeometry(Part.LineSegment(App.Vector(1, 0, 0), App.Vector(1, 100, 0)), False)
sketch16.addGeometry(Part.LineSegment(App.Vector(1, 100, 0), App.Vector(0, 100.600861, 0)), False)
sketch16.addConstraint(Sketcher.Constraint("Coincident", 0, 2, 1, 1))
sketch16.addConstraint(Sketcher.Constraint("Coincident", 1, 2, 2, 1))
sketch16.addConstraint(Sketcher.Constraint("Coincident", 2, 2, 3, 1))
sketch16.addConstraint(Sketcher.Constraint("Coincident", 3, 2, 0, 1))
sketch16.addConstraint(Sketcher.Constraint("Vertical", 0))
sketch16.addConstraint(Sketcher.Constraint("Horizontal", 1))
sketch16.addConstraint(Sketcher.Constraint("Vertical", 2))
sketch16.addConstraint(Sketcher.Constraint("Coincident", 0, 2, -1, 1))
sketch16.addConstraint(Sketcher.Constraint("DistanceX", 1, 1, 1, 2, Q("1 mm")))
sketch16.addConstraint(Sketcher.Constraint("DistanceY", 2, 1, 2, 2, Q("100 mm")))
sketch16.addConstraint(Sketcher.Constraint("Angle", 3, Q("149 deg")))
sketch16.setExpression("Constraints[8]", "Params.sketch16_width")
sketch16.setExpression("Constraints[9]", "Params.sketch16_height")
groove12 = body.newObject("PartDesign::Groove", "Groove011")
groove12.Profile = sketch16
groove12.ReferenceAxis = (sketch16, ["V_Axis"])
groove12.setExpression("Angle", "Params.groove12_angle")

# Sketch on an angled plane
sketch17 = body.newObject("Sketcher::SketchObject", "Sketch016")
sketch17.Placement = App.Placement(App.Vector(-10.392305, -6, 0), App.Rotation(App.Vector(-0.866025404, -0.5, 0), App.Vector(0, 0, 1), App.Vector(-0.5, 0.866025404, 0), "ZXY"))
sketch17.addGeometry(Part.LineSegment(App.Vector(0, 100.600861, 0), App.Vector(0, 0, 0)), False)
sketch17.addGeometry(Part.LineSegment(App.Vector(0, 0, 0), App.Vector(1, 0, 0)), False)
sketch17.addGeometry(Part.LineSegment(App.Vector(1, 0, 0), App.Vector(1, 100, 0)), False)
sketch17.addGeometry(Part.LineSegment(App.Vector(1, 100, 0), App.Vector(0, 100.600861, 0)), False)
sketch17.addConstraint(Sketcher.Constraint("Coincident", 0, 2, 1, 1))
sketch17.addConstraint(Sketcher.Constraint("Coincident", 1, 2, 2, 1))
sketch17.addConstraint(Sketcher.Constraint("Coincident", 2, 2, 3, 1))
sketch17.addConstraint(Sketcher.Constraint("Coincident", 3, 2, 0, 1))
sketch17.addConstraint(Sketcher.Constraint("Vertical", 0))
sketch17.addConstraint(Sketcher.Constraint("Horizontal", 1))
sketch17.addConstraint(Sketcher.Constraint("Vertical", 2))
sketch17.addConstraint(Sketcher.Constraint("Coincident", 0, 2, -1, 1))
sketch17.addConstraint(Sketcher.Constraint("DistanceX", 1, 1, 1, 2, Q("1 mm")))
sketch17.addConstraint(Sketcher.Constraint("DistanceY", 2, 1, 2, 2, Q("100 mm")))
sketch17.addConstraint(Sketcher.Constraint("Angle", 3, Q("149 deg")))
sketch17.setExpression("Constraints[8]", "Params.sketch17_width")
sketch17.setExpression("Constraints[9]", "Params.sketch17_height")
groove13 = body.newObject("PartDesign::Groove", "Groove012")
groove13.Profile = sketch17
groove13.ReferenceAxis = (sketch17, ["V_Axis"])
groove13.setExpression("Angle", "Params.groove13_angle")

# Sketch on YZ plane
sketch18 = body.newObject("Sketcher::SketchObject", "Sketch017")
sketch18.AttachmentSupport = (doc.getObject("YZ_Plane"), [""])
sketch18.MapMode = "FlatFace"
sketch18.addGeometry(Part.LineSegment(App.Vector(-12, 100.600861, 0), App.Vector(-12, 0, 0)), False)
sketch18.addGeometry(Part.LineSegment(App.Vector(-12, 0, 0), App.Vector(-13, 0, 0)), False)
sketch18.addGeometry(Part.LineSegment(App.Vector(-13, 0, 0), App.Vector(-13, 100, 0)), False)
sketch18.addGeometry(Part.LineSegment(App.Vector(-13, 100, 0), App.Vector(-12, 100.600861, 0)), False)
sketch18.addGeometry(Part.LineSegment(App.Vector(-12, 0, 0), App.Vector(-12, 100.600861, 0)), True)  # axis
sketch18.addConstraint(Sketcher.Constraint("Coincident", 0, 2, 1, 1))
sketch18.addConstraint(Sketcher.Constraint("Coincident", 1, 2, 2, 1))
sketch18.addConstraint(Sketcher.Constraint("Coincident", 2, 2, 3, 1))
sketch18.addConstraint(Sketcher.Constraint("Coincident", 3, 2, 0, 1))
sketch18.addConstraint(Sketcher.Constraint("Vertical", 0))
sketch18.addConstraint(Sketcher.Constraint("Horizontal", 1))
sketch18.addConstraint(Sketcher.Constraint("Vertical", 2))
sketch18.addConstraint(Sketcher.Constraint("Vertical", 4))
sketch18.addConstraint(Sketcher.Constraint("Coincident", 4, 1, 0, 2))
sketch18.addConstraint(Sketcher.Constraint("PointOnObject", 0, 2, -1))
sketch18.addConstraint(Sketcher.Constraint("Equal", 0, 4))
sketch18.addConstraint(Sketcher.Constraint("DistanceX", 1, 2, 1, 1, Q("1 mm")))
sketch18.addConstraint(Sketcher.Constraint("DistanceY", 2, 1, 2, 2, Q("100 mm")))
sketch18.addConstraint(Sketcher.Constraint("Angle", 3, Q("31 deg")))
sketch18.addConstraint(Sketcher.Constraint("DistanceX", 0, 2, -1, 1, Q("12 mm")))
sketch18.setExpression("Constraints[11]", "Params.sketch18_width")
sketch18.setExpression("Constraints[12]", "Params.sketch18_height")
groove14 = body.newObject("PartDesign::Groove", "Groove013")
groove14.Profile = sketch18
groove14.ReferenceAxis = (sketch18, ["Axis0"])
groove14.setExpression("Angle", "Params.groove14_angle")

# Sketch on an angled plane
sketch19 = body.newObject("Sketcher::SketchObject", "Sketch018")
sketch19.Placement = App.Placement(App.Vector(10.392305, -6, 0), App.Rotation(App.Vector(0.866025404, -0.5, 0), App.Vector(0, 0, 1), App.Vector(-0.5, -0.866025404, 0), "ZXY"))
sketch19.addGeometry(Part.LineSegment(App.Vector(0, 100.600861, 0), App.Vector(0, 0, 0)), False)
sketch19.addGeometry(Part.LineSegment(App.Vector(0, 0, 0), App.Vector(1, 0, 0)), False)
sketch19.addGeometry(Part.LineSegment(App.Vector(1, 0, 0), App.Vector(1, 100, 0)), False)
sketch19.addGeometry(Part.LineSegment(App.Vector(1, 100, 0), App.Vector(0, 100.600861, 0)), False)
sketch19.addConstraint(Sketcher.Constraint("Coincident", 0, 2, 1, 1))
sketch19.addConstraint(Sketcher.Constraint("Coincident", 1, 2, 2, 1))
sketch19.addConstraint(Sketcher.Constraint("Coincident", 2, 2, 3, 1))
sketch19.addConstraint(Sketcher.Constraint("Coincident", 3, 2, 0, 1))
sketch19.addConstraint(Sketcher.Constraint("Vertical", 0))
sketch19.addConstraint(Sketcher.Constraint("Horizontal", 1))
sketch19.addConstraint(Sketcher.Constraint("Vertical", 2))
sketch19.addConstraint(Sketcher.Constraint("Coincident", 0, 2, -1, 1))
sketch19.addConstraint(Sketcher.Constraint("DistanceX", 1, 1, 1, 2, Q("1 mm")))
sketch19.addConstraint(Sketcher.Constraint("DistanceY", 2, 1, 2, 2, Q("100 mm")))
sketch19.addConstraint(Sketcher.Constraint("Angle", 3, Q("149 deg")))
sketch19.setExpression("Constraints[8]", "Params.sketch19_width")
sketch19.setExpression("Constraints[9]", "Params.sketch19_height")
groove15 = body.newObject("PartDesign::Groove", "Groove014")
groove15.Profile = sketch19
groove15.ReferenceAxis = (sketch19, ["V_Axis"])
groove15.setExpression("Angle", "Params.groove15_angle")

# Sketch on an angled plane
sketch20 = body.newObject("Sketcher::SketchObject", "Sketch019")
sketch20.Placement = App.Placement(App.Vector(10.392305, 6, 0), App.Rotation(App.Vector(0.866025404, 0.5, 0), App.Vector(0, 0, 1), App.Vector(0.5, -0.866025404, 0), "ZXY"))
sketch20.addGeometry(Part.LineSegment(App.Vector(0, 100.600861, 0), App.Vector(0, 0, 0)), False)
sketch20.addGeometry(Part.LineSegment(App.Vector(0, 0, 0), App.Vector(1, 0, 0)), False)
sketch20.addGeometry(Part.LineSegment(App.Vector(1, 0, 0), App.Vector(1, 100, 0)), False)
sketch20.addGeometry(Part.LineSegment(App.Vector(1, 100, 0), App.Vector(0, 100.600861, 0)), False)
sketch20.addConstraint(Sketcher.Constraint("Coincident", 0, 2, 1, 1))
sketch20.addConstraint(Sketcher.Constraint("Coincident", 1, 2, 2, 1))
sketch20.addConstraint(Sketcher.Constraint("Coincident", 2, 2, 3, 1))
sketch20.addConstraint(Sketcher.Constraint("Coincident", 3, 2, 0, 1))
sketch20.addConstraint(Sketcher.Constraint("Vertical", 0))
sketch20.addConstraint(Sketcher.Constraint("Horizontal", 1))
sketch20.addConstraint(Sketcher.Constraint("Vertical", 2))
sketch20.addConstraint(Sketcher.Constraint("Coincident", 0, 2, -1, 1))
sketch20.addConstraint(Sketcher.Constraint("DistanceX", 1, 1, 1, 2, Q("1 mm")))
sketch20.addConstraint(Sketcher.Constraint("DistanceY", 2, 1, 2, 2, Q("100 mm")))
sketch20.addConstraint(Sketcher.Constraint("Angle", 3, Q("149 deg")))
sketch20.setExpression("Constraints[8]", "Params.sketch20_width")
sketch20.setExpression("Constraints[9]", "Params.sketch20_height")
groove16 = body.newObject("PartDesign::Groove", "Groove015")
groove16.Profile = sketch20
groove16.ReferenceAxis = (sketch20, ["V_Axis"])
groove16.setExpression("Angle", "Params.groove16_angle")

# Sketch on an angled plane
sketch21 = body.newObject("Sketcher::SketchObject", "Sketch020")
sketch21.Placement = App.Placement(App.Vector(-12.990381, 7.5, 0), App.Rotation(App.Vector(-0.866025404, 0.5, 0), App.Vector(0, 0, 1), App.Vector(0.5, 0.866025404, 0), "ZXY"))
sketch21.addGeometry(Part.LineSegment(App.Vector(0, 100.600861, 0), App.Vector(0, 0, 0)), False)
sketch21.addGeometry(Part.LineSegment(App.Vector(0, 0, 0), App.Vector(1, 0, 0)), False)
sketch21.addGeometry(Part.LineSegment(App.Vector(1, 0, 0), App.Vector(1, 100, 0)), False)
sketch21.addGeometry(Part.LineSegment(App.Vector(1, 100, 0), App.Vector(0, 100.600861, 0)), False)
sketch21.addConstraint(Sketcher.Constraint("Coincident", 0, 2, 1, 1))
sketch21.addConstraint(Sketcher.Constraint("Coincident", 1, 2, 2, 1))
sketch21.addConstraint(Sketcher.Constraint("Coincident", 2, 2, 3, 1))
sketch21.addConstraint(Sketcher.Constraint("Coincident", 3, 2, 0, 1))
sketch21.addConstraint(Sketcher.Constraint("Vertical", 0))
sketch21.addConstraint(Sketcher.Constraint("Horizontal", 1))
sketch21.addConstraint(Sketcher.Constraint("Vertical", 2))
sketch21.addConstraint(Sketcher.Constraint("Coincident", 0, 2, -1, 1))
sketch21.addConstraint(Sketcher.Constraint("DistanceX", 1, 1, 1, 2, Q("1 mm")))
sketch21.addConstraint(Sketcher.Constraint("DistanceY", 2, 1, 2, 2, Q("100 mm")))
sketch21.addConstraint(Sketcher.Constraint("Angle", 3, Q("149 deg")))
sketch21.setExpression("Constraints[8]", "Params.sketch21_width")
sketch21.setExpression("Constraints[9]", "Params.sketch21_height")
groove17 = body.newObject("PartDesign::Groove", "Groove016")
groove17.Profile = sketch21
groove17.ReferenceAxis = (sketch21, ["V_Axis"])
groove17.setExpression("Angle", "Params.groove17_angle")

# Sketch on an angled plane
sketch22 = body.newObject("Sketcher::SketchObject", "Sketch021")
sketch22.Placement = App.Placement(App.Vector(-12.990381, -7.5, 0), App.Rotation(App.Vector(-0.866025404, -0.5, 0), App.Vector(0, 0, 1), App.Vector(-0.5, 0.866025404, 0), "ZXY"))
sketch22.addGeometry(Part.LineSegment(App.Vector(0, 100.600861, 0), App.Vector(0, 0, 0)), False)
sketch22.addGeometry(Part.LineSegment(App.Vector(0, 0, 0), App.Vector(1, 0, 0)), False)
sketch22.addGeometry(Part.LineSegment(App.Vector(1, 0, 0), App.Vector(1, 100, 0)), False)
sketch22.addGeometry(Part.LineSegment(App.Vector(1, 100, 0), App.Vector(0, 100.600861, 0)), False)
sketch22.addConstraint(Sketcher.Constraint("Coincident", 0, 2, 1, 1))
sketch22.addConstraint(Sketcher.Constraint("Coincident", 1, 2, 2, 1))
sketch22.addConstraint(Sketcher.Constraint("Coincident", 2, 2, 3, 1))
sketch22.addConstraint(Sketcher.Constraint("Coincident", 3, 2, 0, 1))
sketch22.addConstraint(Sketcher.Constraint("Vertical", 0))
sketch22.addConstraint(Sketcher.Constraint("Horizontal", 1))
sketch22.addConstraint(Sketcher.Constraint("Vertical", 2))
sketch22.addConstraint(Sketcher.Constraint("Coincident", 0, 2, -1, 1))
sketch22.addConstraint(Sketcher.Constraint("DistanceX", 1, 1, 1, 2, Q("1 mm")))
sketch22.addConstraint(Sketcher.Constraint("DistanceY", 2, 1, 2, 2, Q("100 mm")))
sketch22.addConstraint(Sketcher.Constraint("Angle", 3, Q("149 deg")))
sketch22.setExpression("Constraints[8]", "Params.sketch22_width")
sketch22.setExpression("Constraints[9]", "Params.sketch22_height")
groove18 = body.newObject("PartDesign::Groove", "Groove017")
groove18.Profile = sketch22
groove18.ReferenceAxis = (sketch22, ["V_Axis"])
groove18.setExpression("Angle", "Params.groove18_angle")

# Sketch on YZ plane
sketch23 = body.newObject("Sketcher::SketchObject", "Sketch022")
sketch23.AttachmentSupport = (doc.getObject("YZ_Plane"), [""])
sketch23.MapMode = "FlatFace"
sketch23.addGeometry(Part.LineSegment(App.Vector(-15, 100.600861, 0), App.Vector(-15, 0, 0)), False)
sketch23.addGeometry(Part.LineSegment(App.Vector(-15, 0, 0), App.Vector(-16, 0, 0)), False)
sketch23.addGeometry(Part.LineSegment(App.Vector(-16, 0, 0), App.Vector(-16, 100, 0)), False)
sketch23.addGeometry(Part.LineSegment(App.Vector(-16, 100, 0), App.Vector(-15, 100.600861, 0)), False)
sketch23.addGeometry(Part.LineSegment(App.Vector(-15, 0, 0), App.Vector(-15, 100.600861, 0)), True)  # axis
sketch23.addConstraint(Sketcher.Constraint("Coincident", 0, 2, 1, 1))
sketch23.addConstraint(Sketcher.Constraint("Coincident", 1, 2, 2, 1))
sketch23.addConstraint(Sketcher.Constraint("Coincident", 2, 2, 3, 1))
sketch23.addConstraint(Sketcher.Constraint("Coincident", 3, 2, 0, 1))
sketch23.addConstraint(Sketcher.Constraint("Vertical", 0))
sketch23.addConstraint(Sketcher.Constraint("Horizontal", 1))
sketch23.addConstraint(Sketcher.Constraint("Vertical", 2))
sketch23.addConstraint(Sketcher.Constraint("Vertical", 4))
sketch23.addConstraint(Sketcher.Constraint("Coincident", 4, 1, 0, 2))
sketch23.addConstraint(Sketcher.Constraint("PointOnObject", 0, 2, -1))
sketch23.addConstraint(Sketcher.Constraint("Equal", 0, 4))
sketch23.addConstraint(Sketcher.Constraint("DistanceX", 1, 2, 1, 1, Q("1 mm")))
sketch23.addConstraint(Sketcher.Constraint("DistanceY", 2, 1, 2, 2, Q("100 mm")))
sketch23.addConstraint(Sketcher.Constraint("Angle", 3, Q("31 deg")))
sketch23.addConstraint(Sketcher.Constraint("DistanceX", 0, 2, -1, 1, Q("15 mm")))
sketch23.setExpression("Constraints[11]", "Params.sketch23_width")
sketch23.setExpression("Constraints[12]", "Params.sketch23_height")
groove19 = body.newObject("PartDesign::Groove", "Groove018")
groove19.Profile = sketch23
groove19.ReferenceAxis = (sketch23, ["Axis0"])
groove19.setExpression("Angle", "Params.groove19_angle")

# Sketch on an angled plane
sketch24 = body.newObject("Sketcher::SketchObject", "Sketch023")
sketch24.Placement = App.Placement(App.Vector(12.990381, -7.5, 0), App.Rotation(App.Vector(0.866025404, -0.5, 0), App.Vector(0, 0, 1), App.Vector(-0.5, -0.866025404, 0), "ZXY"))
sketch24.addGeometry(Part.LineSegment(App.Vector(0, 100.600861, 0), App.Vector(0, 0, 0)), False)
sketch24.addGeometry(Part.LineSegment(App.Vector(0, 0, 0), App.Vector(1, 0, 0)), False)
sketch24.addGeometry(Part.LineSegment(App.Vector(1, 0, 0), App.Vector(1, 100, 0)), False)
sketch24.addGeometry(Part.LineSegment(App.Vector(1, 100, 0), App.Vector(0, 100.600861, 0)), False)
sketch24.addConstraint(Sketcher.Constraint("Coincident", 0, 2, 1, 1))
sketch24.addConstraint(Sketcher.Constraint("Coincident", 1, 2, 2, 1))
sketch24.addConstraint(Sketcher.Constraint("Coincident", 2, 2, 3, 1))
sketch24.addConstraint(Sketcher.Constraint("Coincident", 3, 2, 0, 1))
sketch24.addConstraint(Sketcher.Constraint("Vertical", 0))
sketch24.addConstraint(Sketcher.Constraint("Horizontal", 1))
sketch24.addConstraint(Sketcher.Constraint("Vertical", 2))
sketch24.addConstraint(Sketcher.Constraint("Coincident", 0, 2, -1, 1))
sketch24.addConstraint(Sketcher.Constraint("DistanceX", 1, 1, 1, 2, Q("1 mm")))
sketch24.addConstraint(Sketcher.Constraint("DistanceY", 2, 1, 2, 2, Q("100 mm")))
sketch24.addConstraint(Sketcher.Constraint("Angle", 3, Q("149 deg")))
sketch24.setExpression("Constraints[8]", "Params.sketch24_width")
sketch24.setExpression("Constraints[9]", "Params.sketch24_height")
groove20 = body.newObject("PartDesign::Groove", "Groove019")
groove20.Profile = sketch24
groove20.ReferenceAxis = (sketch24, ["V_Axis"])
groove20.setExpression("Angle", "Params.groove20_angle")

# Sketch on an angled plane
sketch25 = body.newObject("Sketcher::SketchObject", "Sketch024")
sketch25.Placement = App.Placement(App.Vector(12.990381, 7.5, 0), App.Rotation(App.Vector(0.866025404, 0.5, 0), App.Vector(0, 0, 1), App.Vector(0.5, -0.866025404, 0), "ZXY"))
sketch25.addGeometry(Part.LineSegment(App.Vector(0, 100.600861, 0), App.Vector(0, 0, 0)), False)
sketch25.addGeometry(Part.LineSegment(App.Vector(0, 0, 0), App.Vector(1, 0, 0)), False)
sketch25.addGeometry(Part.LineSegment(App.Vector(1, 0, 0), App.Vector(1, 100, 0)), False)
sketch25.addGeometry(Part.LineSegment(App.Vector(1, 100, 0), App.Vector(0, 100.600861, 0)), False)
sketch25.addConstraint(Sketcher.Constraint("Coincident", 0, 2, 1, 1))
sketch25.addConstraint(Sketcher.Constraint("Coincident", 1, 2, 2, 1))
sketch25.addConstraint(Sketcher.Constraint("Coincident", 2, 2, 3, 1))
sketch25.addConstraint(Sketcher.Constraint("Coincident", 3, 2, 0, 1))
sketch25.addConstraint(Sketcher.Constraint("Vertical", 0))
sketch25.addConstraint(Sketcher.Constraint("Horizontal", 1))
sketch25.addConstraint(Sketcher.Constraint("Vertical", 2))
sketch25.addConstraint(Sketcher.Constraint("Coincident", 0, 2, -1, 1))
sketch25.addConstraint(Sketcher.Constraint("DistanceX", 1, 1, 1, 2, Q("1 mm")))
sketch25.addConstraint(Sketcher.Constraint("DistanceY", 2, 1, 2, 2, Q("100 mm")))
sketch25.addConstraint(Sketcher.Constraint("Angle", 3, Q("149 deg")))
sketch25.setExpression("Constraints[8]", "Params.sketch25_width")
sketch25.setExpression("Constraints[9]", "Params.sketch25_height")
groove21 = body.newObject("PartDesign::Groove", "Groove020")
groove21.Profile = sketch25
groove21.ReferenceAxis = (sketch25, ["V_Axis"])
groove21.setExpression("Angle", "Params.groove21_angle")

doc.recompute()
